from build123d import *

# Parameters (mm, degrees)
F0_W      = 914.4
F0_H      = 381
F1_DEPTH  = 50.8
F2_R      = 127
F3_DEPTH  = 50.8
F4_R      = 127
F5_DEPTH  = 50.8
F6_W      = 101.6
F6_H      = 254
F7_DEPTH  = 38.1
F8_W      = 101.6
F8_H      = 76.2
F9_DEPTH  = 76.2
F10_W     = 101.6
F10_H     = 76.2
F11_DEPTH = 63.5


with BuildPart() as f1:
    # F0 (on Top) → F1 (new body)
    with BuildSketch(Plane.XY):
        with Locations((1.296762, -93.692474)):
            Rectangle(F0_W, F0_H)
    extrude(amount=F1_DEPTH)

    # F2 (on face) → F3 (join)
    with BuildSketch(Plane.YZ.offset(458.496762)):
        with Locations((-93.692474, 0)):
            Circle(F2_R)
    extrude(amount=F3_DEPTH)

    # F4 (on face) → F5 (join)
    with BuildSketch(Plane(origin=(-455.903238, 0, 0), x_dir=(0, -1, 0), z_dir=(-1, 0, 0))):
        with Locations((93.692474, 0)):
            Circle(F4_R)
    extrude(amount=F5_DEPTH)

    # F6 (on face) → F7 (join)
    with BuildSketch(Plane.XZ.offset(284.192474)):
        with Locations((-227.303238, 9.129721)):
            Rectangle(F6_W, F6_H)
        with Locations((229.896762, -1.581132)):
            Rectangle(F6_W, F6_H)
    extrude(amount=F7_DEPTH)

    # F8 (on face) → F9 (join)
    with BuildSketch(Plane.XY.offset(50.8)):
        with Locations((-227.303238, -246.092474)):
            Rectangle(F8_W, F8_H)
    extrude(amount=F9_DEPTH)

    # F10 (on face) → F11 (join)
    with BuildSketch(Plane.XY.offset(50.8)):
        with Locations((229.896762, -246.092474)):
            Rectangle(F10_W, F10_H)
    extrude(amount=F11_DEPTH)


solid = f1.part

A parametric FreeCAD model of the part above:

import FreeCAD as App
import Part
import Sketcher

V = App.Vector
Q = App.Units.Quantity


def add_polygon(sketch, points):
    """Adds a closed chain of lines whose ends are joined by coincident constraints."""
    first, n = sketch.GeometryCount, len(points)
    for a, b in zip(points, points[1:] + points[:1]):
        sketch.addGeometry(Part.LineSegment(App.Vector(*a, 0), App.Vector(*b, 0)), False)
    for i in range(n):
        sketch.addConstraint(Sketcher.Constraint("Coincident", first + i, 2, first + (i + 1) % n, 1))

doc = App.newDocument("Part")
body = doc.addObject("PartDesign::Body", "Body")

# Sketch on XY plane
sketch1 = body.newObject("Sketcher::SketchObject", "Sketch")
sketch1.AttachmentSupport = (doc.getObject("XY_Plane"), [""])
sketch1.MapMode = "FlatFace"
add_polygon(sketch1, [(-456, 97), (-456, -284), (458, -284), (458, 97)])  # lines 0-3
sketch1.addConstraint(Sketcher.Constraint("Vertical", 0))
sketch1.addConstraint(Sketcher.Constraint("Horizontal", 1))
sketch1.addConstraint(Sketcher.Constraint("Vertical", 2))
sketch1.addConstraint(Sketcher.Constraint("Horizontal", 3))
sketch1.addConstraint(Sketcher.Constraint("DistanceX", 1, 1, 1, 2, Q("36 in")))
sketch1.addConstraint(Sketcher.Constraint("DistanceY", 0, 2, 0, 1, Q("15 in")))
sketch1.addConstraint(Sketcher.Constraint("DistanceX", 0, 2, -1, 1, 455.903238))
sketch1.addConstraint(Sketcher.Constraint("DistanceY", 0, 2, -1, 1, 284.192474))
pad1 = body.newObject("PartDesign::Pad", "Pad")
pad1.Profile = sketch1
pad1.Length = Q("2 in")

# Sketch on YZ plane
sketch2 = body.newObject("Sketcher::SketchObject", "Sketch001")
sketch2.AttachmentSupport = (doc.getObject("YZ_Plane"), [""])
sketch2.MapMode = "FlatFace"
sketch2.AttachmentOffset = App.Placement(V(0, 0, 458.496762), App.Rotation())
sketch2.addGeometry(Part.Circle(V(-94, 0, 0), V(0, 0, 1), 127), False)
sketch2.addConstraint(Sketcher.Constraint("PointOnObject", 0, 3, -1))
sketch2.addConstraint(Sketcher.Constraint("Diameter", 0, Q("10 in")))
sketch2.addConstraint(Sketcher.Constraint("DistanceX", 0, 3, -1, 1, 93.692474))
pad2 = body.newObject("PartDesign::Pad", "Pad001")
pad2.Profile = sketch2
pad2.Length = Q("2 in")

# Sketch on YZ plane
sketch3 = body.newObject("Sketcher::SketchObject", "Sketch002")
sketch3.AttachmentSupport = (doc.getObject("YZ_Plane"), [""])
sketch3.MapMode = "FlatFace"
sketch3.AttachmentOffset = App.Placement(V(0, 0, -455.903238), App.Rotation())
sketch3.addGeometry(Part.Circle(V(-94, 0, 0), V(0, 0, 1), 127), False)
sketch3.addConstraint(Sketcher.Constraint("PointOnObject", 0, 3, -1))
sketch3.addConstraint(Sketcher.Constraint("Diameter", 0, Q("10 in")))
sketch3.addConstraint(Sketcher.Constraint("DistanceX", 0, 3, -1, 1, 93.692474))
pad3 = body.newObject("PartDesign::Pad", "Pad002")
pad3.Profile = sketch3
pad3.Length = Q("2 in")
pad3.Reversed = True

# Sketch on XZ plane
sketch4 = body.newObject("Sketcher::SketchObject", "Sketch003")
sketch4.AttachmentSupport = (doc.getObject("XZ_Plane"), [""])
sketch4.MapMode = "FlatFace"
sketch4.AttachmentOffset = App.Placement(V(0, 0, 284.192474), App.Rotation())
add_polygon(sketch4, [(-278, 136), (-278, -118), (-177, -118), (-177, 136)])  # lines 0-3
add_polygon(sketch4, [(179, 125), (179, -129), (281, -129), (281, 125)])  # lines 4-7
sketch4.addConstraint(Sketcher.Constraint("Vertical", 0))
sketch4.addConstraint(Sketcher.Constraint("Horizontal", 1))
sketch4.addConstraint(Sketcher.Constraint("Vertical", 2))
sketch4.addConstraint(Sketcher.Constraint("Horizontal", 3))
sketch4.addConstraint(Sketcher.Constraint("Vertical", 4))
sketch4.addConstraint(Sketcher.Constraint("Horizontal", 5))
sketch4.addConstraint(Sketcher.Constraint("Vertical", 6))
sketch4.addConstraint(Sketcher.Constraint("Horizontal", 7))
sketch4.addConstraint(Sketcher.Constraint("Equal", 3, 5))
sketch4.addConstraint(Sketcher.Constraint("Equal", 2, 4))
sketch4.addConstraint(Sketcher.Constraint("DistanceX", 1, 1, 1, 2, Q("4 in")))
sketch4.addConstraint(Sketcher.Constraint("DistanceY", 0, 2, 0, 1, Q("10 in")))
sketch4.addConstraint(Sketcher.Constraint("DistanceX", 1, 2, 4, 2, Q("14 in")))
sketch4.addConstraint(Sketcher.Constraint("DistanceY", 0, 2, -1, 1, 117.870279))
sketch4.addConstraint(Sketcher.Constraint("DistanceX", 1, 2, -1, 1, 176.503238))
sketch4.addConstraint(Sketcher.Constraint("DistanceY", 4, 2, -1, 1, 128.581132))
pad4 = body.newObject("PartDesign::Pad", "Pad003")
pad4.Profile = sketch4
pad4.Length = Q("1.5 in")

# Sketch on XY plane
sketch5 = body.newObject("Sketcher::SketchObject", "Sketch004")
sketch5.AttachmentSupport = (doc.getObject("XY_Plane"), [""])
sketch5.MapMode = "FlatFace"
sketch5.AttachmentOffset = App.Placement(V(0, 0, 2 * 25.4), App.Rotation())
add_polygon(sketch5, [(-278, -208), (-278, -284), (-177, -284), (-177, -208)])  # lines 0-3
sketch5.addConstraint(Sketcher.Constraint("Vertical", 0))
sketch5.addConstraint(Sketcher.Constraint("Horizontal", 1))
sketch5.addConstraint(Sketcher.Constraint("Vertical", 2))
sketch5.addConstraint(Sketcher.Constraint("Horizontal", 3))
sketch5.addConstraint(Sketcher.Constraint("DistanceX", 1, 1, 1, 2, Q("4 in")))
sketch5.addConstraint(Sketcher.Constraint("DistanceY", 0, 2, 0, 1, Q("3 in")))
sketch5.addConstraint(Sketcher.Constraint("DistanceX", 1, 2, -1, 1, 176.503238))
sketch5.addConstraint(Sketcher.Constraint("DistanceY", 0, 2, -1, 1, 284.192474))
pad5 = body.newObject("PartDesign::Pad", "Pad004")
pad5.Profile = sketch5
pad5.Length = Q("3 in")

# Sketch on XY plane
sketch6 = body.newObject("Sketcher::SketchObject", "Sketch005")
sketch6.AttachmentSupport = (doc.getObject("XY_Plane"), [""])
sketch6.MapMode = "FlatFace"
sketch6.AttachmentOffset = App.Placement(V(0, 0, 2 * 25.4), App.Rotation())
add_polygon(sketch6, [(179, -208), (179, -284), (281, -284), (281, -208)])  # lines 0-3
sketch6.addConstraint(Sketcher.Constraint("Vertical", 0))
sketch6.addConstraint(Sketcher.Constraint("Horizontal", 1))
sketch6.addConstraint(Sketcher.Constraint("Vertical", 2))
sketch6.addConstraint(Sketcher.Constraint("Horizontal", 3))
sketch6.addConstraint(Sketcher.Constraint("DistanceX", 1, 1, 1, 2, Q("4 in")))
sketch6.addConstraint(Sketcher.Constraint("DistanceY", 0, 2, 0, 1, Q("3 in")))
sketch6.addConstraint(Sketcher.Constraint("DistanceX", -1, 1, 1, 2, 280.696762))
sketch6.addConstraint(Sketcher.Constraint("DistanceY", 0, 2, -1, 1, 284.192474))
pad6 = body.newObject("PartDesign::Pad", "Pad005")
pad6.Profile = sketch6
pad6.Length = Q("2.5 in")

doc.recompute()
